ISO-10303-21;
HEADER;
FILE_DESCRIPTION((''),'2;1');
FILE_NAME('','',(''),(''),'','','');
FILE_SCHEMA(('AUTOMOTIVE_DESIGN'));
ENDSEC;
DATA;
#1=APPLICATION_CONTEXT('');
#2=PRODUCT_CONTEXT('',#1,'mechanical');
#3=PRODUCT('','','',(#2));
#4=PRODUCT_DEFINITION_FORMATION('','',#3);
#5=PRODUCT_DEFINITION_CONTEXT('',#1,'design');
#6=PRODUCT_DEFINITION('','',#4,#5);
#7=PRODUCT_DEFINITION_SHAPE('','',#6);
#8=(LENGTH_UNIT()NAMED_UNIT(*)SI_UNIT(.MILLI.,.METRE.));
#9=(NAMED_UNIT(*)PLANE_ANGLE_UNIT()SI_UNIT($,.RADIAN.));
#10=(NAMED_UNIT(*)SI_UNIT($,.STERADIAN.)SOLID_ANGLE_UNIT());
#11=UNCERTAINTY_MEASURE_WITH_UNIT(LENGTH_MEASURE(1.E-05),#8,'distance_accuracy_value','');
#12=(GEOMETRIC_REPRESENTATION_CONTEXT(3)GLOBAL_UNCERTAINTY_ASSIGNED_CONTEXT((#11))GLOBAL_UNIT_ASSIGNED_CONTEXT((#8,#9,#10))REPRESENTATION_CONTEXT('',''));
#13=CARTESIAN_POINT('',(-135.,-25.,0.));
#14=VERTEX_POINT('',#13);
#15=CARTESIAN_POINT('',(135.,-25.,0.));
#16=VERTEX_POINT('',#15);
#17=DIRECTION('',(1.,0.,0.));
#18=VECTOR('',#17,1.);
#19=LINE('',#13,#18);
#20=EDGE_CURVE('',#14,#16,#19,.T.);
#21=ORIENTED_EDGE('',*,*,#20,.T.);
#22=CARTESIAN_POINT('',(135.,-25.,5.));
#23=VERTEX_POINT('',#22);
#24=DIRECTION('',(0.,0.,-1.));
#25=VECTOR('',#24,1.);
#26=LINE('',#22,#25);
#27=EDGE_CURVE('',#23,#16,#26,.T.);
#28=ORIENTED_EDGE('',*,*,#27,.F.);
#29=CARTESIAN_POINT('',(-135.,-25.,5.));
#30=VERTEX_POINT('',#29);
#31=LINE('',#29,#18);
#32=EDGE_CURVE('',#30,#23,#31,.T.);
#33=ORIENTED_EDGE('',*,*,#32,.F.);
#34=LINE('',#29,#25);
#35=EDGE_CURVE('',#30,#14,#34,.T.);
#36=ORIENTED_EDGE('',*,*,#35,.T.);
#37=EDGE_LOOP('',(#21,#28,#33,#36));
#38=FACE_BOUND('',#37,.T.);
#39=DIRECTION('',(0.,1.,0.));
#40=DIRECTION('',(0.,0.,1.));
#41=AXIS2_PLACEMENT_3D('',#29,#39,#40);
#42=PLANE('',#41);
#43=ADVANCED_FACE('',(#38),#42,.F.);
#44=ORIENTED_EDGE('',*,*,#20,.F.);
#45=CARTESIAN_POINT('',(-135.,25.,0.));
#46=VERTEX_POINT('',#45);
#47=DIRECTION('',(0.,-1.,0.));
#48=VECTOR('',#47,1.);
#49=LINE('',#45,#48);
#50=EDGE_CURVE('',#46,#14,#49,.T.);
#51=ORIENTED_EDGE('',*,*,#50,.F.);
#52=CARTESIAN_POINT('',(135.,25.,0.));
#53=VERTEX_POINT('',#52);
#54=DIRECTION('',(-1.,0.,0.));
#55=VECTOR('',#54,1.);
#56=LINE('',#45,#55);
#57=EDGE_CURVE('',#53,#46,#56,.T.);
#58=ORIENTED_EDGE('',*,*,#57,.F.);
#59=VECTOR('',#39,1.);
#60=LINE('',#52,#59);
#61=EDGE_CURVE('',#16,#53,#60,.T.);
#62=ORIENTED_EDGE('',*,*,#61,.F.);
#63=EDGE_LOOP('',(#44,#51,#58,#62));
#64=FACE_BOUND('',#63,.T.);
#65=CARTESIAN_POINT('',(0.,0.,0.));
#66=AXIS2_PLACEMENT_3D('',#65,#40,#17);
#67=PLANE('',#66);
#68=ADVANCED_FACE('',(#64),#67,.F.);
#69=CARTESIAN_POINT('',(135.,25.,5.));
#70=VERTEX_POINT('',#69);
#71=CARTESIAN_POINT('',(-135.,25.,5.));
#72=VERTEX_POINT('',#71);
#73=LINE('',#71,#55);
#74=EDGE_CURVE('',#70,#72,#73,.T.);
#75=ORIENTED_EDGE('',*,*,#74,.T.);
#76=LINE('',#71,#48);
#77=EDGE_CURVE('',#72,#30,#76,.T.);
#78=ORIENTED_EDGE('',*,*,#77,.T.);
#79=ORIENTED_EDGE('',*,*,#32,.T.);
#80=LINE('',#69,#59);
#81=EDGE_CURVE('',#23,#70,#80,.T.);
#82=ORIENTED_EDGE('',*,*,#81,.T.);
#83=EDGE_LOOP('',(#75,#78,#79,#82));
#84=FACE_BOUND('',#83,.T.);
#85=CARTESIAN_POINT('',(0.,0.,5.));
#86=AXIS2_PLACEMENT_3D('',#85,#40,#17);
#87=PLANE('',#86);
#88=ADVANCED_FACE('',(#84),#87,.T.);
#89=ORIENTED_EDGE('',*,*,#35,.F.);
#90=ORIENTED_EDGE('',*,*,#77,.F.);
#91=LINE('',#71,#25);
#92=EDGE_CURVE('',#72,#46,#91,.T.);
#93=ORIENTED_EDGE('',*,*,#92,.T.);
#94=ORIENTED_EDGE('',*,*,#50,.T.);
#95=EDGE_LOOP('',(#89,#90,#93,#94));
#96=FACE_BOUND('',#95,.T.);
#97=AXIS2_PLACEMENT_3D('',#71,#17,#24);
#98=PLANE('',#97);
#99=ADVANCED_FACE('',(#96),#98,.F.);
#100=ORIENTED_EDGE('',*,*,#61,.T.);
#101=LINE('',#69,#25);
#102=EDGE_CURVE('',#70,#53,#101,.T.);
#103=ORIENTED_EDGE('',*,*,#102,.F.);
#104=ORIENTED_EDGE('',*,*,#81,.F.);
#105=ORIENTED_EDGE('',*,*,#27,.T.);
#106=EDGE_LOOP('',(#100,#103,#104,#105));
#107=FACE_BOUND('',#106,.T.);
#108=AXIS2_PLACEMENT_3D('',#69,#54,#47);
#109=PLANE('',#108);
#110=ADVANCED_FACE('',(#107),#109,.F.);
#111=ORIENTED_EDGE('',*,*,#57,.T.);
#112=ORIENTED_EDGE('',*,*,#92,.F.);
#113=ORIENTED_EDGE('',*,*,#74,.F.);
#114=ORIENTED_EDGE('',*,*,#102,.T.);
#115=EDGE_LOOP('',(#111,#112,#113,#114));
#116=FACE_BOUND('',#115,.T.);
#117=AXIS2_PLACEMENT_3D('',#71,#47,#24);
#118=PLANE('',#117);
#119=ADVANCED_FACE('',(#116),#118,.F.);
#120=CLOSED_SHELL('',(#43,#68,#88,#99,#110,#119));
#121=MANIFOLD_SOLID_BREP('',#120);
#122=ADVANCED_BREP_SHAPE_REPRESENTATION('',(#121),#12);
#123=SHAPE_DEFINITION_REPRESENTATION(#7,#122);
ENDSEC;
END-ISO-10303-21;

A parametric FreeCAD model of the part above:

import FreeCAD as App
import Part
import Sketcher
Q = App.Units.Quantity


def add_polygon(sketch, points):
    """Adds a closed chain of lines whose ends are joined by coincident constraints."""
    first, n = sketch.GeometryCount, len(points)
    for a, b in zip(points, points[1:] + points[:1]):
        sketch.addGeometry(Part.LineSegment(App.Vector(*a, 0), App.Vector(*b, 0)), False)
    for i in range(n):
        sketch.addConstraint(Sketcher.Constraint("Coincident", first + i, 2, first + (i + 1) % n, 1))

doc = App.newDocument("Part")
params = doc.addObject("Spreadsheet::Sheet", "Params")
for row, (alias, value) in enumerate([
    ("sketch1_width", "270 mm"),
    ("sketch1_height", "50 mm"),
    ("pad1_length", "5 mm"),
], start=1):
    params.set(f"A{row}", alias)
    params.set(f"B{row}", "=" + value)
    params.setAlias(f"B{row}", alias)

body = doc.addObject("PartDesign::Body", "Body")

# Sketch on XY plane
sketch1 = body.newObject("Sketcher::SketchObject", "Sketch")
sketch1.AttachmentSupport = (doc.getObject("XY_Plane"), [""])
sketch1.MapMode = "FlatFace"
add_polygon(sketch1, [(-135, 25), (-135, -25), (135, -25), (135, 25)])  # lines 0-3
sketch1.addConstraint([
    Sketcher.Constraint("Vertical", 0),
    Sketcher.Constraint("Horizontal", 1),
    Sketcher.Constraint("Vertical", 2),
    Sketcher.Constraint("Horizontal", 3),
    Sketcher.Constraint("Symmetric", 0, 2, 2, 2, -1, 1),
    Sketcher.Constraint("DistanceX", 1, 1, 1, 2, Q("270 mm")),
    Sketcher.Constraint("DistanceY", 0, 2, 0, 1, Q("50 mm")),
])
sketch1.setExpression("Constraints[9]", "Params.sketch1_width")
sketch1.setExpression("Constraints[10]", "Params.sketch1_height")
pad1 = body.newObject("PartDesign::Pad", "Pad")
pad1.Profile = sketch1
pad1.setExpression("Length", "Params.pad1_length")

doc.recompute()
